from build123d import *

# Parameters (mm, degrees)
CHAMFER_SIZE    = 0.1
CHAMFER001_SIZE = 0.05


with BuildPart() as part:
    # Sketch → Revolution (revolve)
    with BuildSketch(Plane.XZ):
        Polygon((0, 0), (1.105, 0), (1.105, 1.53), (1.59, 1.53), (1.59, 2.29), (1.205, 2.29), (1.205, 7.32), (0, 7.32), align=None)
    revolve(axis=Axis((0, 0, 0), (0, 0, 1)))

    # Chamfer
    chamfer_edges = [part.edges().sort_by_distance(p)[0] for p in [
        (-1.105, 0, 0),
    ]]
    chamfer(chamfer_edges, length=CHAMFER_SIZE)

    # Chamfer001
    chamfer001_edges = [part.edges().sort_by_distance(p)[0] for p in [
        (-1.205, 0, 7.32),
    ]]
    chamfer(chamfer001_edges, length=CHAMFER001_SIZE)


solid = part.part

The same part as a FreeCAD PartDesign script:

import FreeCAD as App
import Part
import Sketcher


def edges_at(feature, points):
    """Names of the edges that pass closest to the given points."""
    edges = feature.Shape.Edges
    near = lambda p: min(range(len(edges)), key=lambda i: edges[i].distToShape(Part.Vertex(*p))[0])
    return sorted({f"Edge{near(p) + 1}" for p in points})

doc = App.newDocument("Part")
body = doc.addObject("PartDesign::Body", "Body")

sketch1 = body.newObject("Sketcher::SketchObject", "Sketch")
sketch1.AttachmentSupport = (doc.getObject("XZ_Plane"), [""])
sketch1.MapMode = "FlatFace"
sketch1.addGeometry([
    Part.LineSegment(App.Vector(0, 0, 0), App.Vector(1.1, 0, 0)),
    Part.LineSegment(App.Vector(1.1, 0, 0), App.Vector(1.1, 1.53, 0)),
    Part.LineSegment(App.Vector(1.1, 1.53, 0), App.Vector(1.59, 1.53, 0)),
    Part.LineSegment(App.Vector(1.59, 1.53, 0), App.Vector(1.59, 2.29, 0)),
    Part.LineSegment(App.Vector(1.59, 2.29, 0), App.Vector(1.21, 2.29, 0)),
    Part.LineSegment(App.Vector(1.21, 2.29, 0), App.Vector(1.21, 7.32, 0)),
    Part.LineSegment(App.Vector(1.21, 7.32, 0), App.Vector(0, 7.32, 0)),
    Part.LineSegment(App.Vector(0, 7.32, 0), App.Vector(0, 0, 0)),
], False)
sketch1.addConstraint([
    Sketcher.Constraint("Coincident", 0, 2, 1, 1),
    Sketcher.Constraint("Coincident", 1, 2, 2, 1),
    Sketcher.Constraint("Coincident", 2, 2, 3, 1),
    Sketcher.Constraint("Coincident", 3, 2, 4, 1),
    Sketcher.Constraint("Coincident", 4, 2, 5, 1),
    Sketcher.Constraint("Coincident", 5, 2, 6, 1),
    Sketcher.Constraint("Coincident", 6, 2, 7, 1),
    Sketcher.Constraint("Coincident", 7, 2, 0, 1),
    Sketcher.Constraint("Horizontal", 0),
    Sketcher.Constraint("Vertical", 1),
    Sketcher.Constraint("Horizontal", 2),
    Sketcher.Constraint("Vertical", 3),
    Sketcher.Constraint("Horizontal", 4),
    Sketcher.Constraint("Vertical", 5),
    Sketcher.Constraint("Horizontal", 6),
    Sketcher.Constraint("Vertical", 7),
    Sketcher.Constraint("Coincident", 7, 2, -1, 1),
    Sketcher.Constraint("DistanceY", 1, 1, 1, 2, 1.53),
    Sketcher.Constraint("DistanceY", 3, 1, 3, 2, 0.76),
    Sketcher.Constraint("DistanceY", 5, 1, 5, 2, 5.03),
    Sketcher.Constraint("DistanceX", 1, 2, 4, 2, 0.1),
    Sketcher.Constraint("DistanceX", 0, 1, 0, 2, 1.105),
    Sketcher.Constraint("DistanceX", 2, 1, 2, 2, 0.485),
])
revolution = body.newObject("PartDesign::Revolution", "Revolution")
revolution.Profile = sketch1
revolution.ReferenceAxis = (sketch1, ["V_Axis"])
revolution.Angle = 360
doc.recompute()

chamfer = body.newObject("PartDesign::Chamfer", "Chamfer")
chamfer.Base = (revolution, edges_at(revolution, [(-1.105, 0, 0)]))
chamfer.Size = 0.1
doc.recompute()

chamfer2 = body.newObject("PartDesign::Chamfer", "Chamfer001")
chamfer2.Base = (chamfer, edges_at(chamfer, [(-1.205, 0, 7.32)]))
chamfer2.Size = 0.05

doc.recompute()
